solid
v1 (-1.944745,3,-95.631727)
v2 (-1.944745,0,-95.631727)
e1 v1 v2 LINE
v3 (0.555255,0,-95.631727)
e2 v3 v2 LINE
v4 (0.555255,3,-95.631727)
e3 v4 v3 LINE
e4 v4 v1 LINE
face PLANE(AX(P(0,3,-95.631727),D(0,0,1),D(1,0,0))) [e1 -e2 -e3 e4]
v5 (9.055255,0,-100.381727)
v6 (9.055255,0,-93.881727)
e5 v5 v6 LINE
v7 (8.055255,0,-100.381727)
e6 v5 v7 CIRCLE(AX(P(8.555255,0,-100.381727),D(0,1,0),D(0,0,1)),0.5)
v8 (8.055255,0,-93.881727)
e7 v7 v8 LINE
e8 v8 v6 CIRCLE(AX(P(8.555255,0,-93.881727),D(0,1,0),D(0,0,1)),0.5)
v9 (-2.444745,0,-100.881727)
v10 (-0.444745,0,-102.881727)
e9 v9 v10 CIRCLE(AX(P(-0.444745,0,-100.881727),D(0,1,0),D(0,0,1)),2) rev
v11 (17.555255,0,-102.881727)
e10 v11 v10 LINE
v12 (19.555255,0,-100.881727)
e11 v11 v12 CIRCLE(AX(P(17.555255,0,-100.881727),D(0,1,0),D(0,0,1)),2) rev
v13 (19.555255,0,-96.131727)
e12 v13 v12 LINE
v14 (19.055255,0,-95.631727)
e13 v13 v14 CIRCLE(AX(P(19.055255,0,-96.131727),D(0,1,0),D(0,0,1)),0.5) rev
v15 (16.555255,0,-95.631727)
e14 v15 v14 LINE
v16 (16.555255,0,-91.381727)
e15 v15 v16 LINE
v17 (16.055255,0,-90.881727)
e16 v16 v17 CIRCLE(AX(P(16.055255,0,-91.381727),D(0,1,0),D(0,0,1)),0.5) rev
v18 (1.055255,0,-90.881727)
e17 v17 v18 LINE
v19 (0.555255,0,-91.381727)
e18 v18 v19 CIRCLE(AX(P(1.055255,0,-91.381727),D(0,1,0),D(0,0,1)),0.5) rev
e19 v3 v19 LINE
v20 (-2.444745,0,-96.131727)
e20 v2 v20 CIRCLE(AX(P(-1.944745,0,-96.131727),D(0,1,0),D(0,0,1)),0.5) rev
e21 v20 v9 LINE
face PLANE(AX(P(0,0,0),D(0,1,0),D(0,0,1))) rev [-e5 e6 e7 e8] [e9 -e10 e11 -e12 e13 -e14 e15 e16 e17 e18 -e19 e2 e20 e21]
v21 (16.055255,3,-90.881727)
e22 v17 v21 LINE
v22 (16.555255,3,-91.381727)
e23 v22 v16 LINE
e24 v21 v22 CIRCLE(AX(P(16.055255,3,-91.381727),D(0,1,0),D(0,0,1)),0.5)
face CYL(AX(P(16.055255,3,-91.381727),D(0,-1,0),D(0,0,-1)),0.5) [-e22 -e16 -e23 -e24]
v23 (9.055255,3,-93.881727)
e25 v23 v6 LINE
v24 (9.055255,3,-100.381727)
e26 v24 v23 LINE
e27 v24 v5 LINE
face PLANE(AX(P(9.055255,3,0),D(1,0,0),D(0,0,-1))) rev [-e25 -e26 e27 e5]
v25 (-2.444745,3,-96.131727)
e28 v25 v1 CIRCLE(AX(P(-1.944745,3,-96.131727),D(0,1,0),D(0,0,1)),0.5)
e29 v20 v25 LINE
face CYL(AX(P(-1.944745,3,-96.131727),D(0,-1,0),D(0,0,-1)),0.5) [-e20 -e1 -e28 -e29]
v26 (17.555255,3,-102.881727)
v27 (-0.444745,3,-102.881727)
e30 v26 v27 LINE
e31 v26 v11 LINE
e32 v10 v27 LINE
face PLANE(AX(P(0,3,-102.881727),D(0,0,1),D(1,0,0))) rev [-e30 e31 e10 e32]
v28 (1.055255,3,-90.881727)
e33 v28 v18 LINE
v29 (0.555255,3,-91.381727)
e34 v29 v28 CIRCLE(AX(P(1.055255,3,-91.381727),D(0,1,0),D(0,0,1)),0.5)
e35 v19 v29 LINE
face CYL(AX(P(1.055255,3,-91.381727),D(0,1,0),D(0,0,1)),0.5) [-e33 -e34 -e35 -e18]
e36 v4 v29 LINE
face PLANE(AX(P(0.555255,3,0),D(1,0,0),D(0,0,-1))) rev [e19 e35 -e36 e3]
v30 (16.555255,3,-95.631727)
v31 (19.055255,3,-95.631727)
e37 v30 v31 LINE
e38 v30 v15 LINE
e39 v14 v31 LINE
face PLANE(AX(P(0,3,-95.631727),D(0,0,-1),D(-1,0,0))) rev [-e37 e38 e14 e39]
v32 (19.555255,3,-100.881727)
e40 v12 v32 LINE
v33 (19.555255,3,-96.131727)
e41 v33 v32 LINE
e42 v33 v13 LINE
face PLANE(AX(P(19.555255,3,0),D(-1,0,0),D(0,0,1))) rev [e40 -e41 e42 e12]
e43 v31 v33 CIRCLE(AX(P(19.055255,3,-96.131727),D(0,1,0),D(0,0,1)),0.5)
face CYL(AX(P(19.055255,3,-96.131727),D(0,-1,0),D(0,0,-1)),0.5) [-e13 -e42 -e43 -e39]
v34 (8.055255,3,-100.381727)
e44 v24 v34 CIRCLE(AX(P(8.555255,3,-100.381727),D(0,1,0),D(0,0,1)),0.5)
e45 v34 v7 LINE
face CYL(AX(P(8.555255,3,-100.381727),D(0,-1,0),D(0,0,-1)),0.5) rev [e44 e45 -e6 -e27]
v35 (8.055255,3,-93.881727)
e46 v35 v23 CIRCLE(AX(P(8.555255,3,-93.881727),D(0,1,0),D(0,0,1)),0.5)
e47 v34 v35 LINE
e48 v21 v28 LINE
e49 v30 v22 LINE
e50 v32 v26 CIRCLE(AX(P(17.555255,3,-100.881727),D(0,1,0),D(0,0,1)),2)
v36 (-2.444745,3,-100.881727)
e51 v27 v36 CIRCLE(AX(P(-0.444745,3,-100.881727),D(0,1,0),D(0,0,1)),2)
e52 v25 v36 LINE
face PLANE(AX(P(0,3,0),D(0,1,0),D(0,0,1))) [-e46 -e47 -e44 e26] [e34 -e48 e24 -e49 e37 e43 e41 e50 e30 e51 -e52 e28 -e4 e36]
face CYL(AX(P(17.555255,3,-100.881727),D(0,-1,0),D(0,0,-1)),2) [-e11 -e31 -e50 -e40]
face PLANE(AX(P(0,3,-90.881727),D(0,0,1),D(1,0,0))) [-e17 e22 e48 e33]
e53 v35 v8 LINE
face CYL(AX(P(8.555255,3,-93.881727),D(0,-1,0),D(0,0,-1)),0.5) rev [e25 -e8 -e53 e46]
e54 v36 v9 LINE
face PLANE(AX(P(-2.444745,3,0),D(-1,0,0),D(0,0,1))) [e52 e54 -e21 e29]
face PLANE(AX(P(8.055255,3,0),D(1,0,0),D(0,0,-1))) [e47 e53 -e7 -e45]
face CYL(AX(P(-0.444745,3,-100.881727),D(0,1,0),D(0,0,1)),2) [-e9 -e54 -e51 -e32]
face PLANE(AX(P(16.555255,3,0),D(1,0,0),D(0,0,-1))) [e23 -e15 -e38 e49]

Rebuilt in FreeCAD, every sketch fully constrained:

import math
import FreeCAD as App
import Part
import Sketcher
from FreeCAD import Vector


def edges_at(feature, points):
    """Names of the edges that pass closest to the given points."""
    edges = feature.Shape.Edges
    near = lambda p: min(range(len(edges)), key=lambda i: edges[i].distToShape(Part.Vertex(*p))[0])
    return sorted({f"Edge{near(p) + 1}" for p in points})

doc = App.newDocument("Part")
body = doc.addObject("PartDesign::Body", "Body")

# Sketch on XZ plane
sketch1 = doc.addObject("Sketcher::SketchObject", "Sketch")
body.addObject(sketch1)
sketch1.AttachmentSupport = (doc.XZ_Plane, [""])
sketch1.MapMode = "FlatFace"
sketch1.addGeometry(Part.LineSegment(Vector(0.555255, -90.881727, 0), Vector(16.555255, -90.881727, 0)), False)
sketch1.addGeometry(Part.LineSegment(Vector(16.555255, -90.881727, 0), Vector(16.555255, -95.631727, 0)), False)
sketch1.addGeometry(Part.LineSegment(Vector(16.555255, -95.631727, 0), Vector(19.555255, -95.631727, 0)), False)
sketch1.addGeometry(Part.LineSegment(Vector(19.555255, -95.631727, 0), Vector(19.555255, -102.881727, 0)), False)
sketch1.addGeometry(Part.LineSegment(Vector(19.555255, -102.881727, 0), Vector(-2.444745, -102.881727, 0)), False)
sketch1.addGeometry(Part.LineSegment(Vector(-2.444745, -102.881727, 0), Vector(-2.444745, -95.631727, 0)), False)
sketch1.addGeometry(Part.LineSegment(Vector(-2.444745, -95.631727, 0), Vector(0.555255, -95.631727, 0)), False)
sketch1.addGeometry(Part.LineSegment(Vector(0.555255, -95.631727, 0), Vector(0.555255, -90.881727, 0)), False)
sketch1.addGeometry(Part.LineSegment(Vector(8.055255, -93.881727, 0), Vector(8.055255, -100.381727, 0)), False)
sketch1.addGeometry(Part.ArcOfCircle(Part.Circle(Vector(8.555255, -100.381727, 0), Vector(0, 0, 1), 0.5), math.radians(180), math.radians(360)), False)
sketch1.addGeometry(Part.LineSegment(Vector(9.055255, -100.381727, 0), Vector(9.055255, -93.881727, 0)), False)
sketch1.addGeometry(Part.ArcOfCircle(Part.Circle(Vector(8.555255, -93.881727, 0), Vector(0, 0, 1), 0.5), math.radians(0), math.radians(180)), False)
sketch1.addConstraint(Sketcher.Constraint("Coincident", 0, 2, 1, 1))
sketch1.addConstraint(Sketcher.Constraint("Coincident", 1, 2, 2, 1))
sketch1.addConstraint(Sketcher.Constraint("Coincident", 2, 2, 3, 1))
sketch1.addConstraint(Sketcher.Constraint("Coincident", 3, 2, 4, 1))
sketch1.addConstraint(Sketcher.Constraint("Coincident", 4, 2, 5, 1))
sketch1.addConstraint(Sketcher.Constraint("Coincident", 5, 2, 6, 1))
sketch1.addConstraint(Sketcher.Constraint("Coincident", 6, 2, 7, 1))
sketch1.addConstraint(Sketcher.Constraint("Coincident", 7, 2, 0, 1))
sketch1.addConstraint(Sketcher.Constraint("Tangent", 8, 2, 9, 1))
sketch1.addConstraint(Sketcher.Constraint("Tangent", 9, 2, 10, 1))
sketch1.addConstraint(Sketcher.Constraint("Tangent", 10, 2, 11, 1))
sketch1.addConstraint(Sketcher.Constraint("Tangent", 11, 2, 8, 1))
sketch1.addConstraint(Sketcher.Constraint("Horizontal", 0))
sketch1.addConstraint(Sketcher.Constraint("Vertical", 1))
sketch1.addConstraint(Sketcher.Constraint("Horizontal", 2))
sketch1.addConstraint(Sketcher.Constraint("Vertical", 3))
sketch1.addConstraint(Sketcher.Constraint("Horizontal", 4))
sketch1.addConstraint(Sketcher.Constraint("Vertical", 5))
sketch1.addConstraint(Sketcher.Constraint("Horizontal", 6))
sketch1.addConstraint(Sketcher.Constraint("Vertical", 7))
sketch1.addConstraint(Sketcher.Constraint("Vertical", 8))
sketch1.addConstraint(Sketcher.Constraint("Vertical", 10))
sketch1.addConstraint(Sketcher.Constraint("Horizontal", 2, 2, 5, 2))
sketch1.addConstraint(Sketcher.Constraint("Equal", 2, 6))
sketch1.addConstraint(Sketcher.Constraint("Radius", 9, 0.5))
sketch1.addConstraint(Sketcher.Constraint("DistanceX", 0, 1, 0, 2, 16.0))
sketch1.addConstraint(Sketcher.Constraint("DistanceX", 2, 1, 2, 2, 3.0))
sketch1.addConstraint(Sketcher.Constraint("DistanceY", 8, 2, 8, 1, 6.5))
sketch1.addConstraint(Sketcher.Constraint("DistanceX", 11, 3, 0, 2, 8.0))
sketch1.addConstraint(Sketcher.Constraint("DistanceY", 11, 3, 0, 2, 3.0))
sketch1.addConstraint(Sketcher.Constraint("DistanceY", 3, 2, 0, 2, 12.0))
sketch1.addConstraint(Sketcher.Constraint("DistanceY", 1, 2, 1, 1, 4.75))
sketch1.addConstraint(Sketcher.Constraint("DistanceX", -1, 1, 9, 3, 8.555255))
sketch1.addConstraint(Sketcher.Constraint("DistanceY", 9, 3, -1, 1, 100.381727))
pad1 = doc.addObject("PartDesign::Pad", "Pad")
body.addObject(pad1)
pad1.Profile = sketch1
pad1.Length = 3
pad1.Reversed = True
doc.recompute()

fillet = doc.addObject("PartDesign::Fillet", "Fillet")
body.addObject(fillet)
fillet.Base = (pad1, edges_at(pad1, [(-2.445, 1.5, -102.882), (19.555, 1.5, -102.882)]))
fillet.Radius = 2
doc.recompute()

fillet2 = doc.addObject("PartDesign::Fillet", "Fillet001")
body.addObject(fillet2)
fillet2.Base = (fillet, edges_at(fillet, [
    (-2.445, 1.5, -95.632),
    (19.555, 1.5, -95.632),
    (16.555, 1.5, -90.882),
    (0.555, 1.5, -90.882),
]))
fillet2.Radius = 0.5

doc.recompute()
